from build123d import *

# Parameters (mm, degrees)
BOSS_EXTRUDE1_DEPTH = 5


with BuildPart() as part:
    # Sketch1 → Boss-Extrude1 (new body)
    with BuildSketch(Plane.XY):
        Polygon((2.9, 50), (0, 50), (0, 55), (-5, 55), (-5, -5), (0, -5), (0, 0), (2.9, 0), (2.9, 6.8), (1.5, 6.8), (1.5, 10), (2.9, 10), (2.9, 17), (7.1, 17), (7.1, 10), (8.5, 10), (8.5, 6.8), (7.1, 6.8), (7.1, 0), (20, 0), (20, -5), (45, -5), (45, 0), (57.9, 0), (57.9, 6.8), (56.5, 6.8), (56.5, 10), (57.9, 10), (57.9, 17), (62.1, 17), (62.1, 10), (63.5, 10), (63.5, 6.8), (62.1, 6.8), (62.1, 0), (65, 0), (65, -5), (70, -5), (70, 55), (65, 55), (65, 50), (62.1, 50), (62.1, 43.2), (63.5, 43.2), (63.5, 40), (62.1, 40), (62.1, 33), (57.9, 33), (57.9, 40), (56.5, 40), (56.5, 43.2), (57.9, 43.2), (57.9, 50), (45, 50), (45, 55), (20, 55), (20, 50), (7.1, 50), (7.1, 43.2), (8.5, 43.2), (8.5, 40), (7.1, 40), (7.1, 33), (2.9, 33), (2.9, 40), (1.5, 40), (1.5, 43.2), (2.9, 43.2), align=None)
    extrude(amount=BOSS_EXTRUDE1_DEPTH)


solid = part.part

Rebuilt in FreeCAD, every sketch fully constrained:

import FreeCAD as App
import Part
import Sketcher
from FreeCAD import Vector
Q = App.Units.Quantity


def add_polygon(sketch, points):
    """Adds a closed chain of lines whose ends are joined by coincident constraints."""
    first, n = sketch.GeometryCount, len(points)
    for a, b in zip(points, points[1:] + points[:1]):
        sketch.addGeometry(Part.LineSegment(App.Vector(*a, 0), App.Vector(*b, 0)), False)
    for i in range(n):
        sketch.addConstraint(Sketcher.Constraint("Coincident", first + i, 2, first + (i + 1) % n, 1))

doc = App.newDocument("Part")
body = doc.addObject("PartDesign::Body", "Body")

sketch1 = body.newObject("Sketcher::SketchObject", "Sketch")
sketch1.AttachmentSupport = (doc.getObject("XY_Plane"), [""])
sketch1.MapMode = "FlatFace"
add_polygon(sketch1, [(2.9, 50), (0, 50), (0, 55), (-5, 55), (-5, -5), (0, -5), (0, 0), (2.9, 0), (2.9, 6.8), (1.5, 6.8), (1.5, 10), (2.9, 10), (2.9, 17), (7.1, 17), (7.1, 10), (8.5, 10), (8.5, 6.8), (7.1, 6.8), (7.1, 0), (20, 0), (20, -5), (45, -5), (45, 0), (57.9, 0), (57.9, 6.8), (56.5, 6.8), (56.5, 10), (57.9, 10), (57.9, 17), (62.1, 17), (62.1, 10), (63.5, 10), (63.5, 6.8), (62.1, 6.8), (62.1, 0), (65, 0), (65, -5), (70, -5), (70, 55), (65, 55), (65, 50), (62.1, 50), (62.1, 43.2), (63.5, 43.2), (63.5, 40), (62.1, 40), (62.1, 33), (57.9, 33), (57.9, 40), (56.5, 40), (56.5, 43.2), (57.9, 43.2), (57.9, 50), (45, 50), (45, 55), (20, 55), (20, 50), (7.1, 50), (7.1, 43.2), (8.5, 43.2), (8.5, 40), (7.1, 40), (7.1, 33), (2.9, 33), (2.9, 40), (1.5, 40), (1.5, 43.2), (2.9, 43.2)])
sketch1.addConstraint([
    Sketcher.Constraint("Horizontal", 0),
    Sketcher.Constraint("Vertical", 1),
    Sketcher.Constraint("Horizontal", 2),
    Sketcher.Constraint("Vertical", 3),
    Sketcher.Constraint("Horizontal", 4),
    Sketcher.Constraint("Vertical", 5),
    Sketcher.Constraint("Horizontal", 6),
    Sketcher.Constraint("Vertical", 7),
    Sketcher.Constraint("Horizontal", 8),
    Sketcher.Constraint("Vertical", 9),
    Sketcher.Constraint("Horizontal", 10),
    Sketcher.Constraint("Vertical", 11),
    Sketcher.Constraint("Horizontal", 12),
    Sketcher.Constraint("Vertical", 13),
    Sketcher.Constraint("Horizontal", 14),
    Sketcher.Constraint("Vertical", 15),
    Sketcher.Constraint("Horizontal", 16),
    Sketcher.Constraint("Vertical", 17),
    Sketcher.Constraint("Horizontal", 18),
    Sketcher.Constraint("Vertical", 19),
    Sketcher.Constraint("Horizontal", 20),
    Sketcher.Constraint("Vertical", 21),
    Sketcher.Constraint("Horizontal", 22),
    Sketcher.Constraint("Vertical", 23),
    Sketcher.Constraint("Horizontal", 24),
    Sketcher.Constraint("Vertical", 25),
    Sketcher.Constraint("Horizontal", 26),
    Sketcher.Constraint("Vertical", 27),
    Sketcher.Constraint("Horizontal", 28),
    Sketcher.Constraint("Vertical", 29),
    Sketcher.Constraint("Horizontal", 30),
    Sketcher.Constraint("Vertical", 31),
    Sketcher.Constraint("Horizontal", 32),
    Sketcher.Constraint("Vertical", 33),
    Sketcher.Constraint("Horizontal", 34),
    Sketcher.Constraint("Vertical", 35),
    Sketcher.Constraint("Horizontal", 36),
    Sketcher.Constraint("Vertical", 37),
    Sketcher.Constraint("Horizontal", 38),
    Sketcher.Constraint("Vertical", 39),
    Sketcher.Constraint("Horizontal", 40),
    Sketcher.Constraint("Vertical", 41),
    Sketcher.Constraint("Horizontal", 42),
    Sketcher.Constraint("Vertical", 43),
    Sketcher.Constraint("Horizontal", 44),
    Sketcher.Constraint("Vertical", 45),
    Sketcher.Constraint("Horizontal", 46),
    Sketcher.Constraint("Vertical", 47),
    Sketcher.Constraint("Horizontal", 48),
    Sketcher.Constraint("Vertical", 49),
    Sketcher.Constraint("Horizontal", 50),
    Sketcher.Constraint("Vertical", 51),
    Sketcher.Constraint("Horizontal", 52),
    Sketcher.Constraint("Vertical", 53),
    Sketcher.Constraint("Horizontal", 54),
    Sketcher.Constraint("Vertical", 55),
    Sketcher.Constraint("Horizontal", 56),
    Sketcher.Constraint("Vertical", 57),
    Sketcher.Constraint("Horizontal", 58),
    Sketcher.Constraint("Vertical", 59),
    Sketcher.Constraint("Horizontal", 60),
    Sketcher.Constraint("Vertical", 61),
    Sketcher.Constraint("Horizontal", 62),
    Sketcher.Constraint("Vertical", 63),
    Sketcher.Constraint("Horizontal", 64),
    Sketcher.Constraint("Vertical", 65),
    Sketcher.Constraint("Horizontal", 66),
    Sketcher.Constraint("Vertical", 67),
    Sketcher.Constraint("Coincident", 5, 2, -1, 1),
    Sketcher.Constraint("PointOnObject", 0, 2, -2),
    Sketcher.Constraint("PointOnObject", 17, 2, -1),
    Sketcher.Constraint("PointOnObject", 21, 2, -1),
    Sketcher.Constraint("PointOnObject", 33, 2, -1),
    Sketcher.Constraint("Horizontal", 10, 2, 13, 2),
    Sketcher.Constraint("Horizontal", 8, 2, 15, 2),
    Sketcher.Constraint("Horizontal", 4, 2, 19, 2),
    Sketcher.Constraint("Horizontal", 16, 2, 23, 2),
    Sketcher.Constraint("Horizontal", 14, 2, 25, 2),
    Sketcher.Constraint("Horizontal", 12, 2, 27, 2),
    Sketcher.Constraint("Horizontal", 26, 2, 29, 2),
    Sketcher.Constraint("Horizontal", 24, 2, 31, 2),
    Sketcher.Constraint("Horizontal", 20, 2, 35, 2),
    Sketcher.Constraint("Horizontal", 2, 2, 37, 2),
    Sketcher.Constraint("Horizontal", 0, 2, 39, 2),
    Sketcher.Constraint("Horizontal", 44, 2, 47, 2),
    Sketcher.Constraint("Horizontal", 42, 2, 49, 2),
    Sketcher.Constraint("Horizontal", 40, 2, 51, 2),
    Sketcher.Constraint("Horizontal", 38, 2, 53, 2),
    Sketcher.Constraint("Horizontal", 52, 2, 55, 2),
    Sketcher.Constraint("Horizontal", 50, 2, 57, 2),
    Sketcher.Constraint("Horizontal", 48, 2, 59, 2),
    Sketcher.Constraint("Horizontal", 46, 2, 61, 2),
    Sketcher.Constraint("Horizontal", 60, 2, 63, 2),
    Sketcher.Constraint("Horizontal", 58, 2, 65, 2),
    Sketcher.Constraint("Vertical", 7, 2, 10, 2),
    Sketcher.Constraint("Vertical", 13, 2, 16, 2),
    Sketcher.Constraint("Vertical", 23, 2, 26, 2),
    Sketcher.Constraint("Vertical", 29, 2, 32, 2),
    Sketcher.Constraint("Vertical", 35, 2, 38, 2),
    Sketcher.Constraint("Vertical", 33, 2, 40, 2),
    Sketcher.Constraint("Vertical", 31, 2, 42, 2),
    Sketcher.Constraint("Vertical", 41, 2, 44, 2),
    Sketcher.Constraint("Vertical", 27, 2, 46, 2),
    Sketcher.Constraint("Vertical", 25, 2, 48, 2),
    Sketcher.Constraint("Vertical", 47, 2, 50, 2),
    Sketcher.Constraint("Vertical", 21, 2, 52, 2),
    Sketcher.Constraint("Vertical", 19, 2, 54, 2),
    Sketcher.Constraint("Vertical", 17, 2, 56, 2),
    Sketcher.Constraint("Vertical", 15, 2, 58, 2),
    Sketcher.Constraint("Vertical", 57, 2, 60, 2),
    Sketcher.Constraint("Vertical", 11, 2, 62, 2),
    Sketcher.Constraint("Vertical", 9, 2, 64, 2),
    Sketcher.Constraint("Vertical", 63, 2, 66, 2),
    Sketcher.Constraint("Equal", 10, 14),
    Sketcher.Constraint("Equal", 18, 22),
    Sketcher.Constraint("Equal", 16, 24),
    Sketcher.Constraint("Equal", 12, 28),
    Sketcher.Constraint("Equal", 26, 30),
    Sketcher.Constraint("Equal", 6, 34),
    Sketcher.Constraint("Equal", 4, 36),
    Sketcher.Constraint("Equal", 38, 1),
    Sketcher.Constraint("Equal", 1, 5),
    Sketcher.Constraint("Equal", 33, 41),
    Sketcher.Constraint("Equal", 31, 43),
    Sketcher.Constraint("Equal", 29, 45),
    Sketcher.Constraint("DistanceX", 2, 2, 2, 1, Q("5 mm")),
    Sketcher.Constraint("DistanceX", 20, 1, 20, 2, Q("25 mm")),
    Sketcher.Constraint("DistanceY", 3, 2, 3, 1, Q("60 mm")),
    Sketcher.Constraint("DistanceY", 11, 1, 11, 2, Q("7 mm")),
    Sketcher.Constraint("DistanceX", 0, 2, 0, 1, Q("2.9 mm")),
    Sketcher.Constraint("DistanceX", 8, 2, 8, 1, Q("1.4 mm")),
    Sketcher.Constraint("DistanceX", 12, 1, 12, 2, Q("4.2 mm")),
    Sketcher.Constraint("DistanceX", 18, 1, 18, 2, Q("12.9 mm")),
    Sketcher.Constraint("DistanceY", 7, 1, 7, 2, Q("6.8 mm")),
    Sketcher.Constraint("DistanceY", 9, 1, 9, 2, Q("3.2 mm")),
])
pad1 = body.newObject("PartDesign::Pad", "Pad")
pad1.Profile = sketch1
pad1.Length = 5

doc.recompute()
